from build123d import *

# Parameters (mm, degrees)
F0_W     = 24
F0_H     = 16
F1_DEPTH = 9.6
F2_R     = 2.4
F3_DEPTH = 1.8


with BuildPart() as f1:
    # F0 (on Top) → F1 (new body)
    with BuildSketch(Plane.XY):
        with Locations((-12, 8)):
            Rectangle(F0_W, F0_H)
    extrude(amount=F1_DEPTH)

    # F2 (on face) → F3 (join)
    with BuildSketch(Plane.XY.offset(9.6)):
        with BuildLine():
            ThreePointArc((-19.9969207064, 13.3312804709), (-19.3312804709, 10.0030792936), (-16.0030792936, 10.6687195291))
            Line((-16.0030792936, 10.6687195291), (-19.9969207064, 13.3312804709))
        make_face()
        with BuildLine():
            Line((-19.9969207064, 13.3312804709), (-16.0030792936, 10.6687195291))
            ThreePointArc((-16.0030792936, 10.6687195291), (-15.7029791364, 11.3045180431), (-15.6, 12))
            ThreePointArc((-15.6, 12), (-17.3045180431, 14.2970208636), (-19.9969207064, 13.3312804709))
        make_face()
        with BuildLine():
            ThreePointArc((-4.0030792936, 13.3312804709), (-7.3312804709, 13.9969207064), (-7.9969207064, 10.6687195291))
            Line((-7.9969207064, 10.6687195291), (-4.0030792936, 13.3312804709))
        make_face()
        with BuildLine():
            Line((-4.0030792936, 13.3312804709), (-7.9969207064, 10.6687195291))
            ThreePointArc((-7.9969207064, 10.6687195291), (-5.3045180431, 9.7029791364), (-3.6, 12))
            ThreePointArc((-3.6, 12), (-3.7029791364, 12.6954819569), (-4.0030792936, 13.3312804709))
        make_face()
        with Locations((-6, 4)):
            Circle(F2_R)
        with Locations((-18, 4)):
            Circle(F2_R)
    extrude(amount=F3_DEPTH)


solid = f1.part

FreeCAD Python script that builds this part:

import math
import FreeCAD as App
import Part
import Sketcher

V = App.Vector
Q = App.Units.Quantity

doc = App.newDocument("Part")
params = doc.addObject("Spreadsheet::Sheet", "Params")
for row, (alias, value) in enumerate([
    ("sketch1_width", "24 mm"),
    ("sketch1_height", "16 mm"),
    ("pad1_length", "9.6 mm"),
    ("sketch2_diameter", "4.8 mm"),
    ("pad2_length", "1.8 mm"),
], start=1):
    params.set(f"A{row}", alias)
    params.set(f"B{row}", "=" + value)
    params.setAlias(f"B{row}", alias)

body = doc.addObject("PartDesign::Body", "Body")

sketch1 = doc.addObject("Sketcher::SketchObject", "Sketch")
body.addObject(sketch1)
sketch1.AttachmentSupport = (doc.XY_Plane, [""])
sketch1.MapMode = "FlatFace"
sketch1.addGeometry([
    Part.LineSegment(V(-24, 16, 0), V(-24, 0, 0)),
    Part.LineSegment(V(-24, 0, 0), V(0, 0, 0)),
    Part.LineSegment(V(0, 0, 0), V(0, 16, 0)),
    Part.LineSegment(V(0, 16, 0), V(-24, 16, 0)),
], False)
sketch1.addConstraint([
    Sketcher.Constraint("Coincident", 0, 2, 1, 1),
    Sketcher.Constraint("Coincident", 1, 2, 2, 1),
    Sketcher.Constraint("Coincident", 2, 2, 3, 1),
    Sketcher.Constraint("Coincident", 3, 2, 0, 1),
    Sketcher.Constraint("Vertical", 0),
    Sketcher.Constraint("Horizontal", 1),
    Sketcher.Constraint("Vertical", 2),
    Sketcher.Constraint("Horizontal", 3),
    Sketcher.Constraint("Coincident", 1, 2, -1, 1),
    Sketcher.Constraint("DistanceX", 1, 1, 1, 2, Q("24 mm")),
    Sketcher.Constraint("DistanceY", 0, 2, 0, 1, Q("16 mm")),
])
sketch1.setExpression("Constraints[9]", "Params.sketch1_width")
sketch1.setExpression("Constraints[10]", "Params.sketch1_height")
pad1 = doc.addObject("PartDesign::Pad", "Pad")
body.addObject(pad1)
pad1.Profile = sketch1
pad1.setExpression("Length", "Params.pad1_length")

sketch2 = doc.addObject("Sketcher::SketchObject", "Sketch001")
body.addObject(sketch2)
sketch2.AttachmentSupport = (doc.XY_Plane, [""])
sketch2.MapMode = "FlatFace"
sketch2.AttachmentOffset = App.Placement(V(0, 0, 9.6), App.Rotation())
sketch2.addGeometry([
    Part.ArcOfCircle(Part.Circle(V(-18, 12, 0), V(0, 0, 1), 2.4), math.radians(146.309932), math.radians(326.309932)),
    Part.ArcOfCircle(Part.Circle(V(-18, 12, 0), V(0, 0, 1), 2.4), math.radians(-33.690068), math.radians(0)),
    Part.ArcOfCircle(Part.Circle(V(-18, 12, 0), V(0, 0, 1), 2.4), math.radians(0), math.radians(146.309932)),
    Part.ArcOfCircle(Part.Circle(V(-6, 12, 0), V(0, 0, 1), 2.4), math.radians(33.690068), math.radians(213.690068)),
    Part.ArcOfCircle(Part.Circle(V(-6, 12, 0), V(0, 0, 1), 2.4), math.radians(-146.309932), math.radians(0)),
    Part.ArcOfCircle(Part.Circle(V(-6, 12, 0), V(0, 0, 1), 2.4), math.radians(0), math.radians(33.690068)),
    Part.Circle(V(-6, 4, 0), V(0, 0, 1), 2.4),
    Part.Circle(V(-18, 4, 0), V(0, 0, 1), 2.4),
], False)
sketch2.addConstraint([
    Sketcher.Constraint("Tangent", 0, 2, 1, 1),
    Sketcher.Constraint("Tangent", 1, 2, 2, 1),
    Sketcher.Constraint("Tangent", 2, 2, 0, 1),
    Sketcher.Constraint("Tangent", 3, 2, 4, 1),
    Sketcher.Constraint("Tangent", 4, 2, 5, 1),
    Sketcher.Constraint("Tangent", 5, 2, 3, 1),
    Sketcher.Constraint("Equal", 2, 3),
    Sketcher.Constraint("Equal", 5, 6),
    Sketcher.Constraint("Equal", 6, 7),
    Sketcher.Constraint("Horizontal", 2, 3, 3, 3),
    Sketcher.Constraint("Horizontal", 6, 3, 7, 3),
    Sketcher.Constraint("Horizontal", 5, 3, 1, 2),
    Sketcher.Constraint("Horizontal", 0, 2, 3, 2),
    Sketcher.Constraint("Horizontal", 1, 2, 4, 2),
    Sketcher.Constraint("Horizontal", 2, 2, 5, 2),
    Sketcher.Constraint("Vertical", 5, 3, 6, 3),
    Sketcher.Constraint("Vertical", 2, 3, 7, 3),
    Sketcher.Constraint("Diameter", 6, Q("4.8 mm")),
    Sketcher.Constraint("DistanceX", 0, 3, -1, 1, Q("18 mm")),
    Sketcher.Constraint("DistanceY", -1, 1, 0, 3, Q("12 mm")),
    Sketcher.Constraint("DistanceX", 3, 3, -1, 1, Q("6 mm")),
    Sketcher.Constraint("DistanceY", -1, 1, 6, 3, Q("4 mm")),
    Sketcher.Constraint("DistanceX", 0, 2, -1, 1, Q("16.003079 mm")),
    Sketcher.Constraint("DistanceX", 2, 2, -1, 1, Q("19.996921 mm")),
])
sketch2.setExpression("Constraints[17]", "Params.sketch2_diameter")
pad2 = doc.addObject("PartDesign::Pad", "Pad001")
body.addObject(pad2)
pad2.Profile = sketch2
pad2.setExpression("Length", "Params.pad2_length")

doc.recompute()
